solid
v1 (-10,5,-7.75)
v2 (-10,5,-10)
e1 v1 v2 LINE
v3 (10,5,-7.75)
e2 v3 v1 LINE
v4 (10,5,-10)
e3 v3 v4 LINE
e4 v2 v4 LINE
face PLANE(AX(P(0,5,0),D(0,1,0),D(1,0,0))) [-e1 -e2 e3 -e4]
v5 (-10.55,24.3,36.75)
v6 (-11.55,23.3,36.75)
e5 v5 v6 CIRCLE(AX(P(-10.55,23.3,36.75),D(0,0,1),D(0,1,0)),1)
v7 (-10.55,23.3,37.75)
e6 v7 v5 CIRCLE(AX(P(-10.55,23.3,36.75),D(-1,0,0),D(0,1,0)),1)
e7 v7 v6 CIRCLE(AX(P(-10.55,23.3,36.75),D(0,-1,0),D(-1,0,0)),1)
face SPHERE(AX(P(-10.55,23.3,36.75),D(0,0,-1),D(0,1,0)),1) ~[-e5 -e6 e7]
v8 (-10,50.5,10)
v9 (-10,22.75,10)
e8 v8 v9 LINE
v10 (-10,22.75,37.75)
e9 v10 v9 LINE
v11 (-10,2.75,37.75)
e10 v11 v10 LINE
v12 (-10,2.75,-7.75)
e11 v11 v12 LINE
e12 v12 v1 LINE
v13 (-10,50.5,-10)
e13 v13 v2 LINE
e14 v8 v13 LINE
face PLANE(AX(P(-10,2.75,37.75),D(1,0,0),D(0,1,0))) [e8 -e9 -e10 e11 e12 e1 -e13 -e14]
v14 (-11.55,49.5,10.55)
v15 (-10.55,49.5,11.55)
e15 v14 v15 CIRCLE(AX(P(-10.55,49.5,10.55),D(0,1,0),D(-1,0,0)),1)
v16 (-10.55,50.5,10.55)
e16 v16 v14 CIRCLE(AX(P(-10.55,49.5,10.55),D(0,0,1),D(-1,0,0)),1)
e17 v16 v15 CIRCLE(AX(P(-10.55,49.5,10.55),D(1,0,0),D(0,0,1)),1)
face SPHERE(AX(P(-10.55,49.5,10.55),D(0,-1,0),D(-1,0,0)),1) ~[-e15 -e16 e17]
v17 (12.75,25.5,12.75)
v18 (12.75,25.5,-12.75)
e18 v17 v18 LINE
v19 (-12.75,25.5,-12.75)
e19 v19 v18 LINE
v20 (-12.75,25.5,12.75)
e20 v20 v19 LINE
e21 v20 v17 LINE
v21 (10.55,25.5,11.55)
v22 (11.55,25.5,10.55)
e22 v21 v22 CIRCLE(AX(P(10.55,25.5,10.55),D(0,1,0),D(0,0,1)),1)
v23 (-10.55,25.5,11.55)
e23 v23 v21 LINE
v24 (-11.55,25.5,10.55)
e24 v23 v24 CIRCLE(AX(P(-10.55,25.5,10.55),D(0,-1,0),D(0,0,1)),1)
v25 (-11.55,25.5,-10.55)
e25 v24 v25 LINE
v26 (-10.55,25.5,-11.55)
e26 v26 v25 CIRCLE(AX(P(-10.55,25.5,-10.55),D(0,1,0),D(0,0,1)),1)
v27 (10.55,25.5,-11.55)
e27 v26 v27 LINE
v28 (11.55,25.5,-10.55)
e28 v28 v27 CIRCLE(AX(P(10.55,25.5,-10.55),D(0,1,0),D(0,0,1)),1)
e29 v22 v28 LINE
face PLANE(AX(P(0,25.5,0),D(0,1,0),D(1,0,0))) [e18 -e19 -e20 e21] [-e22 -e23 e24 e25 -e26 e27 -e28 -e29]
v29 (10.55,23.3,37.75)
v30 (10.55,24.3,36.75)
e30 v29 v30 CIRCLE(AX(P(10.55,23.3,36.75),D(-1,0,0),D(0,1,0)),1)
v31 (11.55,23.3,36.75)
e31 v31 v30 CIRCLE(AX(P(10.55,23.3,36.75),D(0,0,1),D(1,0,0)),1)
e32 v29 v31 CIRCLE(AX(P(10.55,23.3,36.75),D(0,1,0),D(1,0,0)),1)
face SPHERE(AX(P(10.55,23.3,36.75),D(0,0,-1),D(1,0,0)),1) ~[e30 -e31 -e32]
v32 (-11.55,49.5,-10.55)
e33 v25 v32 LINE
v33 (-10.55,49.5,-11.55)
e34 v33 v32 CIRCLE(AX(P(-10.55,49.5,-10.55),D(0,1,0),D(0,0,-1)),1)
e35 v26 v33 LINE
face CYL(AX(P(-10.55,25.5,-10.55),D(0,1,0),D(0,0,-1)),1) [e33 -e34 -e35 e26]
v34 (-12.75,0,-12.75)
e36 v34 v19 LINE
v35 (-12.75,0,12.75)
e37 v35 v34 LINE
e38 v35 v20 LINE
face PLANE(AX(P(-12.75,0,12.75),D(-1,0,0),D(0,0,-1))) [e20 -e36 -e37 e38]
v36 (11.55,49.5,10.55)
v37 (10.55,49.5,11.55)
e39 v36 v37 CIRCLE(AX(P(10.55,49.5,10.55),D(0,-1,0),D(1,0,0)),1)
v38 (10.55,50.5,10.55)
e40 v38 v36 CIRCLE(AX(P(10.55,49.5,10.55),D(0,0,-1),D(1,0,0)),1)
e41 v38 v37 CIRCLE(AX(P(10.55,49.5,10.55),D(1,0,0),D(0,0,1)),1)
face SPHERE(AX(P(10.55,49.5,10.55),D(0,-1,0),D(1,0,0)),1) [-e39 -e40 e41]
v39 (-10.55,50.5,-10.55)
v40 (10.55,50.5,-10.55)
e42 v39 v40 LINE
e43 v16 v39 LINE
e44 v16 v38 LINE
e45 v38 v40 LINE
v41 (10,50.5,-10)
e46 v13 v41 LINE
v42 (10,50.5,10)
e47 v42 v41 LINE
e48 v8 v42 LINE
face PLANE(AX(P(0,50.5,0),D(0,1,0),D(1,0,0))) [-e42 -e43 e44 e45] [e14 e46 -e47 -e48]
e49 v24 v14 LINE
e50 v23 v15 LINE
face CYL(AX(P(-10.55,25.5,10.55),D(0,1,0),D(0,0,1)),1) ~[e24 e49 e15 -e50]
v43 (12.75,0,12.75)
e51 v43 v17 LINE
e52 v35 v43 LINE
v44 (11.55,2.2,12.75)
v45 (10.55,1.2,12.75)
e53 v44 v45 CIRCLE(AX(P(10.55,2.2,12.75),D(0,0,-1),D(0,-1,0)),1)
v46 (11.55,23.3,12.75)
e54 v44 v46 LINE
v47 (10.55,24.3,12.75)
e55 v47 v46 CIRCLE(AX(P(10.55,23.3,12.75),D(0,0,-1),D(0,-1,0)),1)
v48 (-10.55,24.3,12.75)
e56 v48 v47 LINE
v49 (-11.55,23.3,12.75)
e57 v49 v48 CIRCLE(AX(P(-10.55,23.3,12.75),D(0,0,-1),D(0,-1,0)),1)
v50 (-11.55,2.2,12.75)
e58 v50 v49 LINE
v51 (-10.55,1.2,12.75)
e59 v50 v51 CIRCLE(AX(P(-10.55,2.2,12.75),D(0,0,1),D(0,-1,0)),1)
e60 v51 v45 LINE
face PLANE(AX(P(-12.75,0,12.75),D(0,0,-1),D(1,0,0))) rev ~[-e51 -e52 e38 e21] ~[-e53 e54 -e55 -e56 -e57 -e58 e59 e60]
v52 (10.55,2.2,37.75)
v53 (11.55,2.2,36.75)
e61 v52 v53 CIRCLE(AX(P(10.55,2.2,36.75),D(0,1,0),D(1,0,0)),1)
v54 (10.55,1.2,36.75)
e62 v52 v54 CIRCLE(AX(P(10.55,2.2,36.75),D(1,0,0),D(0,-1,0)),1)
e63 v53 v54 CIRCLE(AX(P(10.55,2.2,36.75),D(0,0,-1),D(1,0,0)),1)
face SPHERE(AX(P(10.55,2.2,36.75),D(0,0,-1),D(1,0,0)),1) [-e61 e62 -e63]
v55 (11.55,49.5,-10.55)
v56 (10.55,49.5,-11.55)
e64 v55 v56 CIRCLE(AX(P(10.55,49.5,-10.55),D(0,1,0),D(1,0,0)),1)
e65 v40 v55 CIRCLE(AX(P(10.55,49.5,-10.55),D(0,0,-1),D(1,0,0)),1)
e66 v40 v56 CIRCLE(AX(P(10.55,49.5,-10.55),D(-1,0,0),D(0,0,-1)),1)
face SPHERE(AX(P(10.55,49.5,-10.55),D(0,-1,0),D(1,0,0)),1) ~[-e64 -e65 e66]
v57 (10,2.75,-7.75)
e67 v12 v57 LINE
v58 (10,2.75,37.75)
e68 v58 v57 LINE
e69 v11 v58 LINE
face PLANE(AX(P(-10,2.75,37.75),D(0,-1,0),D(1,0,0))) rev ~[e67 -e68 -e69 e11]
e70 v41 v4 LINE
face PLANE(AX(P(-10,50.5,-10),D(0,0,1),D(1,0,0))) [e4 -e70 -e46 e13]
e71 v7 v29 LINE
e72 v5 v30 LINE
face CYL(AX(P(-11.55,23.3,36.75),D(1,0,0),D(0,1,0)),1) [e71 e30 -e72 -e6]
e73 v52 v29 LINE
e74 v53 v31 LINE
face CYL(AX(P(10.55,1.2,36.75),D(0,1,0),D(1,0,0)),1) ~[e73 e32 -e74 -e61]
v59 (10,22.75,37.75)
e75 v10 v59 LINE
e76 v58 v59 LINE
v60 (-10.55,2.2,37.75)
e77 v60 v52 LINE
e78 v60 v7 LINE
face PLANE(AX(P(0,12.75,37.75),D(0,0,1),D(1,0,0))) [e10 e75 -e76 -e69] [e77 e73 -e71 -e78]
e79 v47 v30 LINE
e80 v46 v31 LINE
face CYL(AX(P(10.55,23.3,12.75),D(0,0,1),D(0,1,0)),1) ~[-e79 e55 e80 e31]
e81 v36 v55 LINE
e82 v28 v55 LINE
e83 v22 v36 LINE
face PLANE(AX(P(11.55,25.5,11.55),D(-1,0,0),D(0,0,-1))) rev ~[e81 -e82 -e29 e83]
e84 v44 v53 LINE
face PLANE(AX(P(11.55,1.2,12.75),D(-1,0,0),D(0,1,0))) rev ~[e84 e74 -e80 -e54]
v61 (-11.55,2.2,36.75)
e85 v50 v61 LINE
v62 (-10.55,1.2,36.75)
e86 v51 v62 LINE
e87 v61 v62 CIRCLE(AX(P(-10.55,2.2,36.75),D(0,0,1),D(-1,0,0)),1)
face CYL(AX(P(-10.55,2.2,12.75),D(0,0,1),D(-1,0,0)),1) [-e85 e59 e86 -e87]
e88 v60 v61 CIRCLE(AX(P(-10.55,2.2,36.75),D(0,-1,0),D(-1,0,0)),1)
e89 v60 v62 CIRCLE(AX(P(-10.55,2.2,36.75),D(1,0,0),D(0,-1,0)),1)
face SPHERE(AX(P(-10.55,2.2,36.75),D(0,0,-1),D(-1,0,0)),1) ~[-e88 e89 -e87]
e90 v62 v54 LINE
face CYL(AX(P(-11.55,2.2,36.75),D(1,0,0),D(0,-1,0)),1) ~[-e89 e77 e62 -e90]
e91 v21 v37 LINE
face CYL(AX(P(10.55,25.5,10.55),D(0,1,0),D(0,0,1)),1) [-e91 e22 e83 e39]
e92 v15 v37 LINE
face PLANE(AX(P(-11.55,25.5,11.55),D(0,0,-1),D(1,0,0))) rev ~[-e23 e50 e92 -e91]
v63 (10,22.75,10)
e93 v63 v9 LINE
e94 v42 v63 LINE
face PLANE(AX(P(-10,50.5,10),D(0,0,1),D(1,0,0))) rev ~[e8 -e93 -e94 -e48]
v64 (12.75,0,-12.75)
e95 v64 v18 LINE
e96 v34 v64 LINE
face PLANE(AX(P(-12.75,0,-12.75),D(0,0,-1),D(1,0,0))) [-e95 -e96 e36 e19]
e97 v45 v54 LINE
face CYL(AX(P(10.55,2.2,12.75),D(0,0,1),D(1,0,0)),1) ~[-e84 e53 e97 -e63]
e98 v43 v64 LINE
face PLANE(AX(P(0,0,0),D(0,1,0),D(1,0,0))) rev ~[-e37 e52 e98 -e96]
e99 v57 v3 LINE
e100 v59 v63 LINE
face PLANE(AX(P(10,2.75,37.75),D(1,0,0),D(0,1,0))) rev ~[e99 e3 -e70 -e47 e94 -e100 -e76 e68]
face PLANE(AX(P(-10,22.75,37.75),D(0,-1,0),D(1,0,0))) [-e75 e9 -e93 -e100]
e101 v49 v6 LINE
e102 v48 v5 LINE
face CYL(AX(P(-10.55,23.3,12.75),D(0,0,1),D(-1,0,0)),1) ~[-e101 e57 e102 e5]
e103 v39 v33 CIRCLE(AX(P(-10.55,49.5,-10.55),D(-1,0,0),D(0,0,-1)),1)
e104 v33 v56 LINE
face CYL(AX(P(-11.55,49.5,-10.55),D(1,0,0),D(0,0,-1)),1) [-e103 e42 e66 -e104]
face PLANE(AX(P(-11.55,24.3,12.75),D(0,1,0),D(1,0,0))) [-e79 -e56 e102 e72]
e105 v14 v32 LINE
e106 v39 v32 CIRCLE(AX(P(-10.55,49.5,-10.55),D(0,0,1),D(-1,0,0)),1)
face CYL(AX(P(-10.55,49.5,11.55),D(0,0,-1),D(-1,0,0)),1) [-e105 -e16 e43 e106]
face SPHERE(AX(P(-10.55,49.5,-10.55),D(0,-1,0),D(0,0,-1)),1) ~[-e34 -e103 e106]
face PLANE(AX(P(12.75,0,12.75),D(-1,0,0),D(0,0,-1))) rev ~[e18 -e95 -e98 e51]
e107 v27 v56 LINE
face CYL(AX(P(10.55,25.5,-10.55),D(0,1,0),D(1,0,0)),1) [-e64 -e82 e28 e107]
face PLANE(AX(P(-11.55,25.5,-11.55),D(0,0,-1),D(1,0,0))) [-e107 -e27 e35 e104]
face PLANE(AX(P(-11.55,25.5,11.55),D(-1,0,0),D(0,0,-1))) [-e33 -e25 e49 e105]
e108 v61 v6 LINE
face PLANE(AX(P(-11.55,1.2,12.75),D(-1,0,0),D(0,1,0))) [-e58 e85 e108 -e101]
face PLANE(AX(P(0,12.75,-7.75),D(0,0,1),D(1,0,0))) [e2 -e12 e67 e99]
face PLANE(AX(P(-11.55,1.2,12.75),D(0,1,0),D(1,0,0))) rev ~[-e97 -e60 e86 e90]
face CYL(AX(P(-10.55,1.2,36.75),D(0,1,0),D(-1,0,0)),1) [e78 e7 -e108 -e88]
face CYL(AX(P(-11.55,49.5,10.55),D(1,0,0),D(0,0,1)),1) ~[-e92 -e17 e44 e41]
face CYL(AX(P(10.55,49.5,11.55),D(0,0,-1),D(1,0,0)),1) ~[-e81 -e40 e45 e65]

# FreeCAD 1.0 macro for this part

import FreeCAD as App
import Part
import Sketcher
from FreeCAD import Vector
Q = App.Units.Quantity


def edges_at(feature, points):
    """Names of the edges that pass closest to the given points."""
    edges = feature.Shape.Edges
    near = lambda p: min(range(len(edges)), key=lambda i: edges[i].distToShape(Part.Vertex(*p))[0])
    return sorted({f"Edge{near(p) + 1}" for p in points})


def add_polygon(sketch, points):
    """Adds a closed chain of lines whose ends are joined by coincident constraints."""
    first, n = sketch.GeometryCount, len(points)
    for a, b in zip(points, points[1:] + points[:1]):
        sketch.addGeometry(Part.LineSegment(App.Vector(*a, 0), App.Vector(*b, 0)), False)
    for i in range(n):
        sketch.addConstraint(Sketcher.Constraint("Coincident", first + i, 2, first + (i + 1) % n, 1))

doc = App.newDocument("Part")
params = doc.addObject("Spreadsheet::Sheet", "Params")
for row, (alias, value) in enumerate([
    ("sketch1_width", "25.5 mm"),
    ("pad1_length", "25.5 mm"),
    ("sketch2_width", "23.1 mm"),
    ("pad2_length", "25 mm"),
    ("sketch3_width", "23.1 mm"),
    ("pad3_length", "25 mm"),
    ("sketch4_width", "20 mm"),
    ("pocket1_length", "45.5 mm"),
    ("sketch5_width", "20 mm"),
    ("pocket2_length", "45.5 mm"),
    ("fillet_radius", "1 mm"),
], start=1):
    params.set(f"A{row}", alias)
    params.set(f"B{row}", "=" + value)
    params.setAlias(f"B{row}", alias)

body = doc.addObject("PartDesign::Body", "Body")

sketch1 = doc.addObject("Sketcher::SketchObject", "Sketch")
body.addObject(sketch1)
sketch1.AttachmentSupport = (doc.XZ_Plane, [""])
sketch1.MapMode = "FlatFace"
add_polygon(sketch1, [(-13, -13), (-13, 13), (13, 13), (13, -13)])
sketch1.addConstraint(Sketcher.Constraint("Vertical", 0))
sketch1.addConstraint(Sketcher.Constraint("Horizontal", 1))
sketch1.addConstraint(Sketcher.Constraint("Vertical", 2))
sketch1.addConstraint(Sketcher.Constraint("Horizontal", 3))
sketch1.addConstraint(Sketcher.Constraint("Symmetric", 0, 2, 2, 2, -1, 1))
sketch1.addConstraint(Sketcher.Constraint("Equal", 3, 0))
sketch1.addConstraint(Sketcher.Constraint("DistanceX", 1, 1, 1, 2, Q("25.5 mm")))
sketch1.setExpression("Constraints[10]", "Params.sketch1_width")
pad1 = doc.addObject("PartDesign::Pad", "Pad")
body.addObject(pad1)
pad1.Profile = sketch1
pad1.setExpression("Length", "Params.pad1_length")
pad1.Reversed = True

sketch2 = doc.addObject("Sketcher::SketchObject", "Sketch001")
body.addObject(sketch2)
sketch2.AttachmentSupport = (doc.XZ_Plane, [""])
sketch2.MapMode = "FlatFace"
sketch2.AttachmentOffset = App.Placement(Vector(0, 0, -25.5), App.Rotation())
add_polygon(sketch2, [(-12, -12), (-12, 12), (12, 12), (12, -12)])
sketch2.addConstraint(Sketcher.Constraint("Vertical", 0))
sketch2.addConstraint(Sketcher.Constraint("Horizontal", 1))
sketch2.addConstraint(Sketcher.Constraint("Vertical", 2))
sketch2.addConstraint(Sketcher.Constraint("Horizontal", 3))
sketch2.addConstraint(Sketcher.Constraint("Symmetric", 0, 2, 2, 2, -1, 1))
sketch2.addConstraint(Sketcher.Constraint("Equal", 3, 0))
sketch2.addConstraint(Sketcher.Constraint("DistanceX", 1, 1, 1, 2, Q("23.1 mm")))
sketch2.setExpression("Constraints[10]", "Params.sketch2_width")
pad2 = doc.addObject("PartDesign::Pad", "Pad001")
body.addObject(pad2)
pad2.Profile = sketch2
pad2.setExpression("Length", "Params.pad2_length")
pad2.Reversed = True

sketch3 = doc.addObject("Sketcher::SketchObject", "Sketch002")
body.addObject(sketch3)
sketch3.AttachmentSupport = (doc.XY_Plane, [""])
sketch3.MapMode = "FlatFace"
sketch3.AttachmentOffset = App.Placement(Vector(0, 0, 12.75), App.Rotation())
add_polygon(sketch3, [(-12, 24), (-12, 1), (12, 1), (12, 24)])
sketch3.addConstraint(Sketcher.Constraint("Vertical", 0))
sketch3.addConstraint(Sketcher.Constraint("Horizontal", 1))
sketch3.addConstraint(Sketcher.Constraint("Vertical", 2))
sketch3.addConstraint(Sketcher.Constraint("Horizontal", 3))
sketch3.addConstraint(Sketcher.Constraint("Equal", 3, 0))
sketch3.addConstraint(Sketcher.Constraint("DistanceX", 1, 1, 1, 2, Q("23.1 mm")))
sketch3.addConstraint(Sketcher.Constraint("DistanceY", -1, 1, 0, 2, Q("1.2 mm")))
sketch3.addConstraint(Sketcher.Constraint("DistanceX", 0, 2, -1, 1, Q("11.55 mm")))
sketch3.setExpression("Constraints[9]", "Params.sketch3_width")
pad3 = doc.addObject("PartDesign::Pad", "Pad002")
body.addObject(pad3)
pad3.Profile = sketch3
pad3.setExpression("Length", "Params.pad3_length")

sketch4 = doc.addObject("Sketcher::SketchObject", "Sketch003")
body.addObject(sketch4)
sketch4.AttachmentSupport = (doc.XY_Plane, [""])
sketch4.MapMode = "FlatFace"
sketch4.AttachmentOffset = App.Placement(Vector(0, 0, 37.75), App.Rotation())
add_polygon(sketch4, [(-10, 23), (-10, 3), (10, 3), (10, 23)])
sketch4.addConstraint(Sketcher.Constraint("Vertical", 0))
sketch4.addConstraint(Sketcher.Constraint("Horizontal", 1))
sketch4.addConstraint(Sketcher.Constraint("Vertical", 2))
sketch4.addConstraint(Sketcher.Constraint("Horizontal", 3))
sketch4.addConstraint(Sketcher.Constraint("Equal", 3, 0))
sketch4.addConstraint(Sketcher.Constraint("DistanceX", 1, 1, 1, 2, Q("20 mm")))
sketch4.addConstraint(Sketcher.Constraint("DistanceX", 0, 2, -1, 1, Q("10 mm")))
sketch4.addConstraint(Sketcher.Constraint("DistanceY", -1, 1, 0, 2, Q("2.75 mm")))
sketch4.setExpression("Constraints[9]", "Params.sketch4_width")
pocket1 = doc.addObject("PartDesign::Pocket", "Pocket")
body.addObject(pocket1)
pocket1.Profile = sketch4
pocket1.setExpression("Length", "Params.pocket1_length")

sketch5 = doc.addObject("Sketcher::SketchObject", "Sketch004")
body.addObject(sketch5)
sketch5.AttachmentSupport = (doc.XZ_Plane, [""])
sketch5.MapMode = "FlatFace"
sketch5.AttachmentOffset = App.Placement(Vector(0, 0, -50.5), App.Rotation())
add_polygon(sketch5, [(-10, -10), (-10, 10), (10, 10), (10, -10)])
sketch5.addConstraint(Sketcher.Constraint("Vertical", 0))
sketch5.addConstraint(Sketcher.Constraint("Horizontal", 1))
sketch5.addConstraint(Sketcher.Constraint("Vertical", 2))
sketch5.addConstraint(Sketcher.Constraint("Horizontal", 3))
sketch5.addConstraint(Sketcher.Constraint("Symmetric", 0, 2, 2, 2, -1, 1))
sketch5.addConstraint(Sketcher.Constraint("Equal", 3, 0))
sketch5.addConstraint(Sketcher.Constraint("DistanceX", 1, 1, 1, 2, Q("20 mm")))
sketch5.setExpression("Constraints[10]", "Params.sketch5_width")
pocket2 = doc.addObject("PartDesign::Pocket", "Pocket001")
body.addObject(pocket2)
pocket2.Profile = sketch5
pocket2.setExpression("Length", "Params.pocket2_length")
pocket2.Reversed = True
doc.recompute()

fillet = doc.addObject("PartDesign::Fillet", "Fillet")
body.addObject(fillet)
fillet.Base = (pocket2, edges_at(pocket2, [
    (11.55, 38, 11.55),
    (11.55, 38, -11.55),
    (-11.55, 38, -11.55),
    (-11.55, 38, 11.55),
    (11.55, 50.5, 0),
    (0, 50.5, -11.55),
    (-11.55, 50.5, 0),
    (0, 50.5, 11.55),
    (11.55, 1.2, 25.25),
    (11.55, 24.3, 25.25),
    (-11.55, 24.3, 25.25),
    (-11.55, 1.2, 25.25),
    (11.55, 12.75, 37.75),
    (0, 24.3, 37.75),
    (-11.55, 12.75, 37.75),
    (0, 1.2, 37.75),
]))
fillet.setExpression("Radius", "Params.fillet_radius")

doc.recompute()
